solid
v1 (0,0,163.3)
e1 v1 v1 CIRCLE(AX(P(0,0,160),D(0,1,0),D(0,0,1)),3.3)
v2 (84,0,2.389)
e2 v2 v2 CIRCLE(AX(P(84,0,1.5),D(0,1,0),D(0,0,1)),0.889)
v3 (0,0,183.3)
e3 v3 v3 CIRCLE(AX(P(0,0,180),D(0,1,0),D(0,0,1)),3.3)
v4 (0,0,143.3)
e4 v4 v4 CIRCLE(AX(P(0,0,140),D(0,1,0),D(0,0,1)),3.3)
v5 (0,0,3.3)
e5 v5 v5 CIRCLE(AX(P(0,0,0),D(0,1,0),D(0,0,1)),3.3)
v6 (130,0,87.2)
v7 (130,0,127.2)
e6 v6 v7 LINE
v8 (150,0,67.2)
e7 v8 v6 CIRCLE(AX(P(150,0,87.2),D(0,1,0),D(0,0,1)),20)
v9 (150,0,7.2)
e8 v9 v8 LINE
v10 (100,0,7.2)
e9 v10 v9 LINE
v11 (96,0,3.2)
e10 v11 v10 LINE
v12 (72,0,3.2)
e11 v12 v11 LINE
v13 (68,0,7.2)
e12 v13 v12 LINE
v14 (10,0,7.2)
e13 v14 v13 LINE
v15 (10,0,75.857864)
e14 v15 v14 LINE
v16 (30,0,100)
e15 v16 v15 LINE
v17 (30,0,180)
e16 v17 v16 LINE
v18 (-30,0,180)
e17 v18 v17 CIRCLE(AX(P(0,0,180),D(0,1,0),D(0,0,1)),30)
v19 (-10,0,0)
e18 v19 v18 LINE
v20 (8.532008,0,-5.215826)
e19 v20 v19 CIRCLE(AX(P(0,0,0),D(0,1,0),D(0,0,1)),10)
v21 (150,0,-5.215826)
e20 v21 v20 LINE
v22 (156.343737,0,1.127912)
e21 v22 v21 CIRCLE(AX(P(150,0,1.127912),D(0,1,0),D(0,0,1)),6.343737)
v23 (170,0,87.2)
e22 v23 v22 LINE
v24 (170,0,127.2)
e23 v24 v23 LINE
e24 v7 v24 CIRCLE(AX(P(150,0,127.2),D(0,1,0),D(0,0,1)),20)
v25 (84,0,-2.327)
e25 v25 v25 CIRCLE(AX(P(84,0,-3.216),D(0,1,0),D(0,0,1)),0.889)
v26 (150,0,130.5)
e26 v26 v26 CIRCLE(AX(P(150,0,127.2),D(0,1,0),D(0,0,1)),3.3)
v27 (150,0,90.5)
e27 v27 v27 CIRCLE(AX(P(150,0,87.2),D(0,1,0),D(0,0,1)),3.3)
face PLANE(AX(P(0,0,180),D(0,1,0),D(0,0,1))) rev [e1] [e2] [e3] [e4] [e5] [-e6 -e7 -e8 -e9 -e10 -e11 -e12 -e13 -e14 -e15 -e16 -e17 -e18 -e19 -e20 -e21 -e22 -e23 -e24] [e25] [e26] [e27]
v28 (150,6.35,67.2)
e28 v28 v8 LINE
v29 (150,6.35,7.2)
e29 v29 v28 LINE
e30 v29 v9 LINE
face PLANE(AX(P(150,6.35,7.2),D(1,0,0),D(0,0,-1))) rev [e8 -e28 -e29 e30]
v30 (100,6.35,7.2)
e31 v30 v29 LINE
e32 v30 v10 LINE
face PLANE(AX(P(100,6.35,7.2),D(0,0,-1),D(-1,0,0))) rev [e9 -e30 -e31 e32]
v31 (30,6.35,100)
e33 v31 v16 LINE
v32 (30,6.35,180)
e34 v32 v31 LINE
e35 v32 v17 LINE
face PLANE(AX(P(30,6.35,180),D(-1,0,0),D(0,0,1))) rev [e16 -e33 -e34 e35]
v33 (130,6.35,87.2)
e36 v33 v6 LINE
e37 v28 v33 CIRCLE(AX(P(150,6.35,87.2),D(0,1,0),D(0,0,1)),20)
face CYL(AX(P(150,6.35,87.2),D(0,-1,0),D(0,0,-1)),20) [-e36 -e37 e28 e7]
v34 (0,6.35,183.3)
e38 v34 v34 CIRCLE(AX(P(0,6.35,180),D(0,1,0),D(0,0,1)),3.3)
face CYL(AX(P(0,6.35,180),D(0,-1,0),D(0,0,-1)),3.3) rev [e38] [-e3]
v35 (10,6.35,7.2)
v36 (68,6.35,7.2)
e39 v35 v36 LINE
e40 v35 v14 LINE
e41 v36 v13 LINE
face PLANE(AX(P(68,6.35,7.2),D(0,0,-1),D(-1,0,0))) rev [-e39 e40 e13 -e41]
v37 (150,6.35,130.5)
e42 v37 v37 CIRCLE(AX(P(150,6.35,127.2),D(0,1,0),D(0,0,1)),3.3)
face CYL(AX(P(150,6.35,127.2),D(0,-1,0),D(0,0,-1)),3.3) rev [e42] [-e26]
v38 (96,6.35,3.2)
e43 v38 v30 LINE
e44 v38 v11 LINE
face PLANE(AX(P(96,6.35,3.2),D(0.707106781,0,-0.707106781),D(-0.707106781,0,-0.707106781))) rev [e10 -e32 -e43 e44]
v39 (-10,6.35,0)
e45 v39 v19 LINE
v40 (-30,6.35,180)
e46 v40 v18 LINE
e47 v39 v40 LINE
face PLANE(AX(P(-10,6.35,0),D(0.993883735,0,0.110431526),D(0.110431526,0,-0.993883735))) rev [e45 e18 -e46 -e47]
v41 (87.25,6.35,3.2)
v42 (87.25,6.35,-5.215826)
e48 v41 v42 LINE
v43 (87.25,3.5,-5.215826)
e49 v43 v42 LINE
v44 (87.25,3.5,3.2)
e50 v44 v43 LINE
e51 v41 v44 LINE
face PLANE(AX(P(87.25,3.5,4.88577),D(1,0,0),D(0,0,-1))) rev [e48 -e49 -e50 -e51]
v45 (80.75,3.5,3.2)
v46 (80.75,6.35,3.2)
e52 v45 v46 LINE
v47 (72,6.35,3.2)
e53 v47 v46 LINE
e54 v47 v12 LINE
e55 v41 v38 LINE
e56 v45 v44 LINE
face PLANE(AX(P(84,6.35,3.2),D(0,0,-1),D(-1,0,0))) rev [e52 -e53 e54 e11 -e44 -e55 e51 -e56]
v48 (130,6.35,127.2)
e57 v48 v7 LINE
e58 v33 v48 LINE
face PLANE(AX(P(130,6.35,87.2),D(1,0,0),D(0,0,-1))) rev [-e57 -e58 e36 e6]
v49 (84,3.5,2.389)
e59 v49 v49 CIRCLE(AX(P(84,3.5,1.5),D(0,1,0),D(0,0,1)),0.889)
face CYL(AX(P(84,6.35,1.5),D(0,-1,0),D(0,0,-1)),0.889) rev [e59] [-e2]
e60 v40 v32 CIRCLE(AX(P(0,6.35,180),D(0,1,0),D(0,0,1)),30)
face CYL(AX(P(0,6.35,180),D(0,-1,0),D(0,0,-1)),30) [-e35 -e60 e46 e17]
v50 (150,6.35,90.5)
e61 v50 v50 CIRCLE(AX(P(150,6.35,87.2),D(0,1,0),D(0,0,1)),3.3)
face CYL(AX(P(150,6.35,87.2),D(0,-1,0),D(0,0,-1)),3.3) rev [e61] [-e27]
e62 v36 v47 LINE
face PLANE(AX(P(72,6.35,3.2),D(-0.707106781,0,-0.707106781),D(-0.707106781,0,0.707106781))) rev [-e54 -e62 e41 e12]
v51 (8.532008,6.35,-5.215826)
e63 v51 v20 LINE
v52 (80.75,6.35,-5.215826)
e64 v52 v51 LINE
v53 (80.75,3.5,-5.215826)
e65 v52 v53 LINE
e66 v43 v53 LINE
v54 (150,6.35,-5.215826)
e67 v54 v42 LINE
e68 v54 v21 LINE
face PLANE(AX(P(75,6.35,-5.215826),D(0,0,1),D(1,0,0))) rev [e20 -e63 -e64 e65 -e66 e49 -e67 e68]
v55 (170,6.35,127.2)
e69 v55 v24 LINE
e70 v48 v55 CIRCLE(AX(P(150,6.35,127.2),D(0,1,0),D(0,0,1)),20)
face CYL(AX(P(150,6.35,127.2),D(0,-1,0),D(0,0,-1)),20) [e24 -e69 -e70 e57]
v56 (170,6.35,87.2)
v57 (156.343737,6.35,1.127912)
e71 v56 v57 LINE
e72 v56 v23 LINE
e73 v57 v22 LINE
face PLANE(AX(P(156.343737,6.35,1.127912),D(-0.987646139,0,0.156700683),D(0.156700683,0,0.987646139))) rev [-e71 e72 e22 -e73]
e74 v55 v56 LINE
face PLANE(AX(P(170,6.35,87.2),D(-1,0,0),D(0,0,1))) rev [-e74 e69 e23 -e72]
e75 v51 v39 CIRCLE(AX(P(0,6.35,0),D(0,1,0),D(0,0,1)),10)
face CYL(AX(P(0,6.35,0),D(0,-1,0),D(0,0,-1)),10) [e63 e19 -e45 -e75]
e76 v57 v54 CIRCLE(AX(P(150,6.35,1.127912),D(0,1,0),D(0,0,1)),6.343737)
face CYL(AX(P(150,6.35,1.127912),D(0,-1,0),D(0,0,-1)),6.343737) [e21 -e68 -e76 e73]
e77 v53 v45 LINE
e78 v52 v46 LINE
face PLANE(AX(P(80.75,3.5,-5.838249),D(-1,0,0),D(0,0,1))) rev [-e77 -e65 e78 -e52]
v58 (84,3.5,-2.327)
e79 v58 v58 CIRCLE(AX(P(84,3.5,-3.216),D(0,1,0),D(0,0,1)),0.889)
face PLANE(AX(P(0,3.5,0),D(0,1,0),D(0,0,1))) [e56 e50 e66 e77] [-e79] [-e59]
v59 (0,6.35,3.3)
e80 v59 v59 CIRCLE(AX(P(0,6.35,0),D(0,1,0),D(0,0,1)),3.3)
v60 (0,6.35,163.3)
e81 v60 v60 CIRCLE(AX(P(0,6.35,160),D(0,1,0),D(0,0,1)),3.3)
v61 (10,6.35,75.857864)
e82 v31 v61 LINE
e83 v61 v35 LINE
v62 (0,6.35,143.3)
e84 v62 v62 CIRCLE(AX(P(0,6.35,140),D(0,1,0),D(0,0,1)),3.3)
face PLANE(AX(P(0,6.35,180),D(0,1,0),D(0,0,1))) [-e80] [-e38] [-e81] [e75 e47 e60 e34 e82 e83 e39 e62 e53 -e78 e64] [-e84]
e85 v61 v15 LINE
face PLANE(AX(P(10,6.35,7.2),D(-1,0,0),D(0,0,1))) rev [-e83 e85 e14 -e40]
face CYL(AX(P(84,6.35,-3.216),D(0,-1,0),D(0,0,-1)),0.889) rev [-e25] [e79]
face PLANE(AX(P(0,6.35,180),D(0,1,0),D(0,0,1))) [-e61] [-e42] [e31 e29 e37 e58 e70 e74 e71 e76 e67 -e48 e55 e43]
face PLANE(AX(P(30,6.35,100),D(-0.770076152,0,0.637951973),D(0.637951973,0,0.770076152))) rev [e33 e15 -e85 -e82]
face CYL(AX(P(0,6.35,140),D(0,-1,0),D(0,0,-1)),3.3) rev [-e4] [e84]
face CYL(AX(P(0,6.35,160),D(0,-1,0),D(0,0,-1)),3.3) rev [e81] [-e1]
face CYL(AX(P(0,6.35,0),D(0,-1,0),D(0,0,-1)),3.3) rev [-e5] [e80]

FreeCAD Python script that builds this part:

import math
import FreeCAD as App
import Part
import Sketcher
from FreeCAD import Vector
Q = App.Units.Quantity

doc = App.newDocument("Part")
body = doc.addObject("PartDesign::Body", "Body")

# Sketch on XZ plane
sketch1 = body.newObject("Sketcher::SketchObject", "Sketch")
sketch1.AttachmentSupport = (doc.getObject("XZ_Plane"), [""])
sketch1.MapMode = "FlatFace"
sketch1.addGeometry([
    Part.LineSegment(Vector(10, 75.9, 0), Vector(10, 7.2, 0)),  # 0
    Part.LineSegment(Vector(10, 7.2, 0), Vector(68, 7.2, 0)),  # 1
    Part.LineSegment(Vector(68, 7.2, 0), Vector(72, 3.2, 0)),  # 2
    Part.LineSegment(Vector(72, 3.2, 0), Vector(96, 3.2, 0)),  # 3
    Part.LineSegment(Vector(96, 3.2, 0), Vector(100, 7.2, 0)),  # 4
    Part.LineSegment(Vector(100, 7.2, 0), Vector(150, 7.2, 0)),  # 5
    Part.LineSegment(Vector(150, 7.2, 0), Vector(150, 67.2, 0)),  # 6
    Part.ArcOfCircle(Part.Circle(Vector(150, 87.2, 0), Vector(0, 0, 1), 20), math.radians(180), math.radians(270)),  # 7
    Part.LineSegment(Vector(130, 87.2, 0), Vector(130, 127.2, 0)),  # 8
    Part.ArcOfCircle(Part.Circle(Vector(150, 127.2, 0), Vector(0, 0, 1), 20), math.radians(0), math.radians(180)),  # 9
    Part.LineSegment(Vector(170, 127.2, 0), Vector(170, 87.2, 0)),  # 10
    Part.LineSegment(Vector(170, 87.2, 0), Vector(156.3, 1.1, 0)),  # 11
    Part.ArcOfCircle(Part.Circle(Vector(150, 1.1, 0), Vector(0, 0, 1), 6.3), math.radians(-90), math.radians(0)),  # 12
    Part.LineSegment(Vector(150, -5.2, 0), Vector(8.5, -5.2, 0)),  # 13
    Part.ArcOfCircle(Part.Circle(Vector(0, 0, 0), Vector(0, 0, 1), 10), math.radians(180), math.radians(329)),  # 14
    Part.LineSegment(Vector(-10, 0, 0), Vector(-30, 180, 0)),  # 15
    Part.ArcOfCircle(Part.Circle(Vector(0, 180, 0), Vector(0, 0, 1), 30), math.radians(0), math.radians(180)),  # 16
    Part.LineSegment(Vector(30, 180, 0), Vector(30, 100, 0)),  # 17
    Part.LineSegment(Vector(30, 100, 0), Vector(10, 75.9, 0)),  # 18
    Part.Circle(Vector(150, 127.2, 0), Vector(0, 0, 1), 3.3),  # 19
    Part.Circle(Vector(0, 180, 0), Vector(0, 0, 1), 3.3),  # 20
    Part.Circle(Vector(0, 160, 0), Vector(0, 0, 1), 3.3),  # 21
    Part.Circle(Vector(0, 140, 0), Vector(0, 0, 1), 3.3),  # 22
    Part.Circle(Vector(150, 87.2, 0), Vector(0, 0, 1), 3.3),  # 23
    Part.Circle(Vector(84, 1.5, 0), Vector(0, 0, 1), 0.9),  # 24
    Part.Circle(Vector(84, -3.2, 0), Vector(0, 0, 1), 0.9),  # 25
    Part.Circle(Vector(0, 0, 0), Vector(0, 0, 1), 3.3),  # 26
], False)
sketch1.addConstraint([
    Sketcher.Constraint("Coincident", 0, 2, 1, 1),
    Sketcher.Constraint("Coincident", 1, 2, 2, 1),
    Sketcher.Constraint("Coincident", 2, 2, 3, 1),
    Sketcher.Constraint("Coincident", 3, 2, 4, 1),
    Sketcher.Constraint("Coincident", 4, 2, 5, 1),
    Sketcher.Constraint("Coincident", 5, 2, 6, 1),
    Sketcher.Constraint("Coincident", 6, 2, 7, 2),
    Sketcher.Constraint("Tangent", 7, 1, 8, 1),
    Sketcher.Constraint("Tangent", 8, 2, 9, 2),
    Sketcher.Constraint("Tangent", 9, 1, 10, 1),
    Sketcher.Constraint("Coincident", 10, 2, 11, 1),
    Sketcher.Constraint("Coincident", 11, 2, 12, 2),
    Sketcher.Constraint("Tangent", 12, 1, 13, 1),
    Sketcher.Constraint("Coincident", 13, 2, 14, 2),
    Sketcher.Constraint("Coincident", 14, 1, 15, 1),
    Sketcher.Constraint("Coincident", 15, 2, 16, 2),
    Sketcher.Constraint("Tangent", 16, 1, 17, 1),
    Sketcher.Constraint("Coincident", 17, 2, 18, 1),
    Sketcher.Constraint("Coincident", 18, 2, 0, 1),
    Sketcher.Constraint("Vertical", 0),
    Sketcher.Constraint("Horizontal", 1),
    Sketcher.Constraint("Horizontal", 3),
    Sketcher.Constraint("Horizontal", 5),
    Sketcher.Constraint("Vertical", 6),
    Sketcher.Constraint("Vertical", 8),
    Sketcher.Constraint("Vertical", 10),
    Sketcher.Constraint("Horizontal", 13),
    Sketcher.Constraint("Vertical", 17),
    Sketcher.Constraint("Coincident", 14, 3, -1, 1),
    Sketcher.Constraint("Coincident", 26, 3, -1, 1),
    Sketcher.Constraint("Coincident", 19, 3, 9, 3),
    Sketcher.Constraint("Coincident", 20, 3, 16, 3),
    Sketcher.Constraint("Coincident", 23, 3, 7, 3),
    Sketcher.Constraint("Equal", 7, 9),
    Sketcher.Constraint("Equal", 19, 20),
    Sketcher.Constraint("Equal", 20, 21),
    Sketcher.Constraint("Equal", 21, 22),
    Sketcher.Constraint("Equal", 22, 23),
    Sketcher.Constraint("Equal", 24, 25),
    Sketcher.Constraint("Equal", 23, 26),
    Sketcher.Constraint("Symmetric", 15, 2, 16, 1, -2),
    Sketcher.Constraint("PointOnObject", 21, 3, -2),
    Sketcher.Constraint("PointOnObject", 22, 3, -2),
    Sketcher.Constraint("PointOnObject", 14, 1, -1),
    Sketcher.Constraint("Perpendicular", 2, 4),
    Sketcher.Constraint("Horizontal", 1, 2, 4, 2),
    Sketcher.Constraint("Horizontal", 7, 1, 10, 2),
    Sketcher.Constraint("Horizontal", 12, 3, 11, 2),
    Sketcher.Constraint("Vertical", 9, 3, 12, 3),
    Sketcher.Constraint("Vertical", 24, 3, 25, 3),
    Sketcher.Constraint("Vertical", 23, 3, 5, 2),
    Sketcher.Constraint("Equal", 2, 4),
    Sketcher.Constraint("Radius", 7, Q("20 mm")),
    Sketcher.Constraint("Radius", 14, Q("10 mm")),
    Sketcher.Constraint("Radius", 16, Q("30 mm")),
    Sketcher.Constraint("Diameter", 19, Q("6.6 mm")),
    Sketcher.Constraint("DistanceX", 1, 1, 1, 2, Q("58 mm")),
    Sketcher.Constraint("DistanceX", 3, 1, 3, 2, Q("24 mm")),
    Sketcher.Constraint("DistanceX", 5, 1, 5, 2, Q("50 mm")),
    Sketcher.Constraint("DistanceY", 6, 1, 6, 2, Q("60 mm")),
    Sketcher.Constraint("DistanceY", 8, 1, 8, 2, Q("40 mm")),
    Sketcher.Constraint("DistanceY", 17, 2, 17, 1, Q("80 mm")),
    Sketcher.Constraint("Diameter", 24, Q("1.778 mm")),
    Sketcher.Constraint("DistanceX", -1, 1, 7, 3, Q("150 mm")),
    Sketcher.Constraint("DistanceY", -1, 1, 16, 3, Q("180 mm")),
    Sketcher.Constraint("DistanceY", -1, 1, 21, 3, Q("160 mm")),
    Sketcher.Constraint("DistanceY", -1, 1, 22, 3, Q("140 mm")),
    Sketcher.Constraint("DistanceX", -1, 1, 24, 3, Q("84 mm")),
    Sketcher.Constraint("DistanceX", -1, 1, 0, 2, Q("10 mm")),
    Sketcher.Constraint("DistanceY", -1, 1, 7, 3, Q("87.2 mm")),
    Sketcher.Constraint("DistanceY", -1, 1, 24, 3, Q("1.5 mm")),
    Sketcher.Constraint("DistanceY", 25, 3, -1, 1, Q("3.216 mm")),
    Sketcher.Constraint("Radius", 12, Q("6.343737 mm")),
    Sketcher.Constraint("DistanceX", 13, 2, 13, 1, Q("141.467992 mm")),
    Sketcher.Constraint("DistanceY", 0, 2, 0, 1, Q("68.657864 mm")),
])
pad1 = body.newObject("PartDesign::Pad", "Pad")
pad1.Profile = sketch1
pad1.Length = 6.35
pad1.Reversed = True

# Sketch on XZ plane
sketch2 = body.newObject("Sketcher::SketchObject", "Sketch001")
sketch2.AttachmentSupport = (doc.getObject("XZ_Plane"), [""])
sketch2.MapMode = "FlatFace"
sketch2.AttachmentOffset = App.Placement(Vector(0, 0, -6.35), App.Rotation())
sketch2.addGeometry([
    Part.LineSegment(Vector(81, -6, 0), Vector(81, 5, 0)),
    Part.LineSegment(Vector(81, 5, 0), Vector(87, 5, 0)),
    Part.LineSegment(Vector(87, 5, 0), Vector(87, -6, 0)),
    Part.LineSegment(Vector(87, -6, 0), Vector(81, -6, 0)),
], False)
sketch2.addConstraint([
    Sketcher.Constraint("Coincident", 0, 2, 1, 1),
    Sketcher.Constraint("Coincident", 1, 2, 2, 1),
    Sketcher.Constraint("Coincident", 2, 2, 3, 1),
    Sketcher.Constraint("Coincident", 3, 2, 0, 1),
    Sketcher.Constraint("Vertical", 0),
    Sketcher.Constraint("Horizontal", 1),
    Sketcher.Constraint("Vertical", 2),
    Sketcher.Constraint("Horizontal", 3),
    Sketcher.Constraint("DistanceX", 1, 1, 1, 2, Q("6.5 mm")),
    Sketcher.Constraint("DistanceX", -1, 1, 0, 2, Q("80.75 mm")),
    Sketcher.Constraint("DistanceY", 0, 1, 0, 2, Q("10.724019 mm")),
    Sketcher.Constraint("DistanceY", -1, 1, 0, 2, Q("4.88577 mm")),
])
pocket1 = body.newObject("PartDesign::Pocket", "Pocket")
pocket1.Profile = sketch2
pocket1.Length = 2.85
pocket1.Reversed = True

doc.recompute()
